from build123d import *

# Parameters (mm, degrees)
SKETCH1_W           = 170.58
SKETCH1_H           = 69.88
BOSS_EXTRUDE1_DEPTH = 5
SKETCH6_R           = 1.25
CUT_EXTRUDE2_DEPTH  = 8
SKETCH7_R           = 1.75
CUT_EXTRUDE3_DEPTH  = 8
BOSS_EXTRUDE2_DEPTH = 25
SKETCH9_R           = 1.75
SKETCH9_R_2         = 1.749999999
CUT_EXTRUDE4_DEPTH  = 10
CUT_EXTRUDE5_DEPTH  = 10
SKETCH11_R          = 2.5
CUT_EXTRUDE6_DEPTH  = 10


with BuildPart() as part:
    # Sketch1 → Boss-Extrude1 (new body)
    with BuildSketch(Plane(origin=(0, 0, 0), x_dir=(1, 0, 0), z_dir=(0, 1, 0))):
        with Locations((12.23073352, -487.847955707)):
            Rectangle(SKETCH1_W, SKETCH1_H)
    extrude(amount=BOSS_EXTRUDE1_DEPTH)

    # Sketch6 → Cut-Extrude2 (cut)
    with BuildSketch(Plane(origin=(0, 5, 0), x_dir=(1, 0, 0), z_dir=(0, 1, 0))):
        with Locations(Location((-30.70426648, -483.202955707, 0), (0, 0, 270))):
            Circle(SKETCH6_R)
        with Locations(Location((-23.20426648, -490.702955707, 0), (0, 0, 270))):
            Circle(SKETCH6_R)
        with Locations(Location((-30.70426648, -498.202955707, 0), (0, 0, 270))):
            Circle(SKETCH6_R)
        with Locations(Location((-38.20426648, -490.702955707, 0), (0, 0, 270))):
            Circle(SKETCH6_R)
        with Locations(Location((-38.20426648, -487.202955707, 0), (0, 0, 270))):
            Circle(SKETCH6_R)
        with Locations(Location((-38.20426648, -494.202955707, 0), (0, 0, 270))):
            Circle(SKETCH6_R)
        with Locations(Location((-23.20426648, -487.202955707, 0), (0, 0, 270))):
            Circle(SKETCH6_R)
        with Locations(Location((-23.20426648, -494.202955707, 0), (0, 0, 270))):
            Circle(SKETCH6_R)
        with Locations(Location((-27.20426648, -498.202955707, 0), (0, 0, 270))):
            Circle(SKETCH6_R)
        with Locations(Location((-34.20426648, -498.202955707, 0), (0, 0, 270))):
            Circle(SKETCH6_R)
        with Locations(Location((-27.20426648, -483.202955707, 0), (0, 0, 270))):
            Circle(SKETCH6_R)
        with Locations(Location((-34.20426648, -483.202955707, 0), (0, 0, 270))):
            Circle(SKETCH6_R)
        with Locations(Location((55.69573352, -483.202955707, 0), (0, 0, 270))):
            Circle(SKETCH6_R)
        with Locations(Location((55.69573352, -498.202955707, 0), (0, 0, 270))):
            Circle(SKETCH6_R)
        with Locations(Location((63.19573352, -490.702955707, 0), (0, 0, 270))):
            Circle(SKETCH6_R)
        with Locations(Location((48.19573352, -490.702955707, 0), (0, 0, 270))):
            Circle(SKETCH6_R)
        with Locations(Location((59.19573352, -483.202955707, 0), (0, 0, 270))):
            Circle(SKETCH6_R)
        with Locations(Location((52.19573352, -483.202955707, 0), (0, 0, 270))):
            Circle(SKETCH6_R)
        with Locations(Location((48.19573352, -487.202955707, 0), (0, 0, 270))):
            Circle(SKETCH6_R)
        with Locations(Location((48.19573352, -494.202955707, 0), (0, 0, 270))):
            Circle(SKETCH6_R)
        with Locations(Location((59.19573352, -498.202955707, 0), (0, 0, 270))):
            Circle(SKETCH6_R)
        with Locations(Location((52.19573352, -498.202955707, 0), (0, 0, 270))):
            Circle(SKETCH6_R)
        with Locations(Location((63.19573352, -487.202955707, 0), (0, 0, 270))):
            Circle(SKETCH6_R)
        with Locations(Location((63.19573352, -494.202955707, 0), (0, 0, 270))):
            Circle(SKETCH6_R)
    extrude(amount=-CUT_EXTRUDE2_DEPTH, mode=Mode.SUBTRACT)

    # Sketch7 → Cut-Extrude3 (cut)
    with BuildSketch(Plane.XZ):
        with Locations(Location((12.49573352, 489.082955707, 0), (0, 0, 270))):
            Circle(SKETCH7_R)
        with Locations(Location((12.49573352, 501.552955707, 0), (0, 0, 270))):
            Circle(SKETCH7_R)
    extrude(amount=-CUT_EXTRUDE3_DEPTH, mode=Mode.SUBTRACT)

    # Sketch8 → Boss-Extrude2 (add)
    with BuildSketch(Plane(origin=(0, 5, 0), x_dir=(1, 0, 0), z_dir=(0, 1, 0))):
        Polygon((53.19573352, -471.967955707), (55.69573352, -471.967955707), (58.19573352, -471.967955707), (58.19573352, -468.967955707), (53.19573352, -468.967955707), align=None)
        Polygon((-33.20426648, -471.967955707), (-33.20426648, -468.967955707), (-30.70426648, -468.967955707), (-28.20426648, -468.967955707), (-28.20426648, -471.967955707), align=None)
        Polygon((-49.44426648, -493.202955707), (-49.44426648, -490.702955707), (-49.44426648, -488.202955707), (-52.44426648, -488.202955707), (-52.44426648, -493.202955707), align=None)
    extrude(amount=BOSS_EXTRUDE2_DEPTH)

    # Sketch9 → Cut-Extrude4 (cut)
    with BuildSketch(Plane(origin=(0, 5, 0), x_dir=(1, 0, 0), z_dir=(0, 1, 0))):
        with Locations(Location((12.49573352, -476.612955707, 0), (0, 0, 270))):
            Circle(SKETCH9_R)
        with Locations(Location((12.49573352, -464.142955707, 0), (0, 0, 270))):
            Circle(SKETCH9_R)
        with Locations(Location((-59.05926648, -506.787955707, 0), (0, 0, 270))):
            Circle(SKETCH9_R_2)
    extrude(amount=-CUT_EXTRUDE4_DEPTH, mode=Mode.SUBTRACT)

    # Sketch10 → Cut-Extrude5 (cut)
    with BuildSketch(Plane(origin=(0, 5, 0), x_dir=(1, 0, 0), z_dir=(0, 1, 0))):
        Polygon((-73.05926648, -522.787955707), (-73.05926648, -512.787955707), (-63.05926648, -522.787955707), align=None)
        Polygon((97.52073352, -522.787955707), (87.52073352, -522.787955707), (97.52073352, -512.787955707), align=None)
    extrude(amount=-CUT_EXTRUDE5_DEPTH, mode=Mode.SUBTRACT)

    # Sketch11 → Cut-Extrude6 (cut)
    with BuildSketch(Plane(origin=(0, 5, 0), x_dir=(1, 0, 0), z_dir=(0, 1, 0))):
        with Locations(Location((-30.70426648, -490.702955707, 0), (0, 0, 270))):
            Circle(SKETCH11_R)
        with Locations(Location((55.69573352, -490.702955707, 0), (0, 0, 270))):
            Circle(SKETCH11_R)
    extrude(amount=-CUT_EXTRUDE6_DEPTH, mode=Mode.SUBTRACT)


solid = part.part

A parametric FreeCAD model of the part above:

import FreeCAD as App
import Part
import Sketcher

V = App.Vector

doc = App.newDocument("Part")
body = doc.addObject("PartDesign::Body", "Body")

sketch1 = doc.addObject("Sketcher::SketchObject", "Sketch")
body.addObject(sketch1)
sketch1.AttachmentSupport = (doc.XZ_Plane, [""])
sketch1.MapMode = "FlatFace"
sketch1.addGeometry([
    Part.LineSegment(V(-73, 453, 0), V(-73, 523, 0)),
    Part.LineSegment(V(-73, 523, 0), V(98, 523, 0)),
    Part.LineSegment(V(98, 523, 0), V(98, 453, 0)),
    Part.LineSegment(V(98, 453, 0), V(-73, 453, 0)),
], False)
sketch1.addConstraint([
    Sketcher.Constraint("Coincident", 0, 2, 1, 1),
    Sketcher.Constraint("Coincident", 1, 2, 2, 1),
    Sketcher.Constraint("Coincident", 2, 2, 3, 1),
    Sketcher.Constraint("Coincident", 3, 2, 0, 1),
    Sketcher.Constraint("Vertical", 0),
    Sketcher.Constraint("Horizontal", 1),
    Sketcher.Constraint("Vertical", 2),
    Sketcher.Constraint("Horizontal", 3),
    Sketcher.Constraint("DistanceX", 1, 1, 1, 2, 170.58),
    Sketcher.Constraint("DistanceY", 0, 1, 0, 2, 69.88),
    Sketcher.Constraint("DistanceX", 0, 2, -1, 1, 73.059266),
    Sketcher.Constraint("DistanceY", -1, 1, 0, 2, 522.787956),
])
pad1 = doc.addObject("PartDesign::Pad", "Pad")
body.addObject(pad1)
pad1.Profile = sketch1
pad1.Length = 5
pad1.Reversed = True

sketch2 = doc.addObject("Sketcher::SketchObject", "Sketch001")
body.addObject(sketch2)
sketch2.AttachmentSupport = (doc.XZ_Plane, [""])
sketch2.MapMode = "FlatFace"
sketch2.AttachmentOffset = App.Placement(V(0, 0, -5), App.Rotation())
sketch2.addGeometry([
    Part.Circle(V(-30.7, 483.2, 0), V(0, 0, 1), 1.2),
    Part.Circle(V(-23.2, 490.7, 0), V(0, 0, 1), 1.2),
    Part.Circle(V(-30.7, 498.2, 0), V(0, 0, 1), 1.2),
    Part.Circle(V(-38.2, 490.7, 0), V(0, 0, 1), 1.2),
    Part.Circle(V(-38.2, 487.2, 0), V(0, 0, 1), 1.2),
    Part.Circle(V(-38.2, 494.2, 0), V(0, 0, 1), 1.2),
    Part.Circle(V(-23.2, 487.2, 0), V(0, 0, 1), 1.2),
    Part.Circle(V(-23.2, 494.2, 0), V(0, 0, 1), 1.2),
    Part.Circle(V(-27.2, 498.2, 0), V(0, 0, 1), 1.2),
    Part.Circle(V(-34.2, 498.2, 0), V(0, 0, 1), 1.2),
    Part.Circle(V(-27.2, 483.2, 0), V(0, 0, 1), 1.2),
    Part.Circle(V(-34.2, 483.2, 0), V(0, 0, 1), 1.2),
    Part.Circle(V(55.7, 483.2, 0), V(0, 0, 1), 1.2),
    Part.Circle(V(55.7, 498.2, 0), V(0, 0, 1), 1.2),
    Part.Circle(V(63.2, 490.7, 0), V(0, 0, 1), 1.2),
    Part.Circle(V(48.2, 490.7, 0), V(0, 0, 1), 1.2),
    Part.Circle(V(59.2, 483.2, 0), V(0, 0, 1), 1.2),
    Part.Circle(V(52.2, 483.2, 0), V(0, 0, 1), 1.2),
    Part.Circle(V(48.2, 487.2, 0), V(0, 0, 1), 1.2),
    Part.Circle(V(48.2, 494.2, 0), V(0, 0, 1), 1.2),
    Part.Circle(V(59.2, 498.2, 0), V(0, 0, 1), 1.2),
    Part.Circle(V(52.2, 498.2, 0), V(0, 0, 1), 1.2),
    Part.Circle(V(63.2, 487.2, 0), V(0, 0, 1), 1.2),
    Part.Circle(V(63.2, 494.2, 0), V(0, 0, 1), 1.2),
], False)
sketch2.addConstraint([
    Sketcher.Constraint("Equal", 0, 1),
    Sketcher.Constraint("Equal", 1, 2),
    Sketcher.Constraint("Equal", 2, 3),
    Sketcher.Constraint("Equal", 3, 4),
    Sketcher.Constraint("Equal", 4, 5),
    Sketcher.Constraint("Equal", 5, 6),
    Sketcher.Constraint("Equal", 6, 7),
    Sketcher.Constraint("Equal", 7, 8),
    Sketcher.Constraint("Equal", 8, 9),
    Sketcher.Constraint("Equal", 9, 10),
    Sketcher.Constraint("Equal", 10, 11),
    Sketcher.Constraint("Equal", 11, 12),
    Sketcher.Constraint("Equal", 12, 13),
    Sketcher.Constraint("Equal", 13, 14),
    Sketcher.Constraint("Equal", 14, 15),
    Sketcher.Constraint("Equal", 15, 16),
    Sketcher.Constraint("Equal", 16, 17),
    Sketcher.Constraint("Equal", 17, 18),
    Sketcher.Constraint("Equal", 18, 19),
    Sketcher.Constraint("Equal", 19, 20),
    Sketcher.Constraint("Equal", 20, 21),
    Sketcher.Constraint("Equal", 21, 22),
    Sketcher.Constraint("Equal", 22, 23),
    Sketcher.Constraint("Horizontal", 1, 3, 3, 3),
    Sketcher.Constraint("Horizontal", 4, 3, 6, 3),
    Sketcher.Constraint("Horizontal", 5, 3, 7, 3),
    Sketcher.Constraint("Horizontal", 2, 3, 8, 3),
    Sketcher.Constraint("Horizontal", 8, 3, 9, 3),
    Sketcher.Constraint("Horizontal", 0, 3, 10, 3),
    Sketcher.Constraint("Horizontal", 10, 3, 11, 3),
    Sketcher.Constraint("Horizontal", 11, 3, 12, 3),
    Sketcher.Constraint("Horizontal", 9, 3, 13, 3),
    Sketcher.Constraint("Horizontal", 3, 3, 14, 3),
    Sketcher.Constraint("Horizontal", 14, 3, 15, 3),
    Sketcher.Constraint("Horizontal", 12, 3, 16, 3),
    Sketcher.Constraint("Horizontal", 16, 3, 17, 3),
    Sketcher.Constraint("Horizontal", 6, 3, 18, 3),
    Sketcher.Constraint("Horizontal", 7, 3, 19, 3),
    Sketcher.Constraint("Horizontal", 13, 3, 20, 3),
    Sketcher.Constraint("Horizontal", 20, 3, 21, 3),
    Sketcher.Constraint("Horizontal", 18, 3, 22, 3),
    Sketcher.Constraint("Horizontal", 19, 3, 23, 3),
    Sketcher.Constraint("Vertical", 0, 3, 2, 3),
    Sketcher.Constraint("Vertical", 3, 3, 4, 3),
    Sketcher.Constraint("Vertical", 4, 3, 5, 3),
    Sketcher.Constraint("Vertical", 1, 3, 6, 3),
    Sketcher.Constraint("Vertical", 6, 3, 7, 3),
    Sketcher.Constraint("Vertical", 8, 3, 10, 3),
    Sketcher.Constraint("Vertical", 9, 3, 11, 3),
    Sketcher.Constraint("Vertical", 12, 3, 13, 3),
    Sketcher.Constraint("Vertical", 15, 3, 18, 3),
    Sketcher.Constraint("Vertical", 18, 3, 19, 3),
    Sketcher.Constraint("Vertical", 16, 3, 20, 3),
    Sketcher.Constraint("Vertical", 17, 3, 21, 3),
    Sketcher.Constraint("Vertical", 14, 3, 22, 3),
    Sketcher.Constraint("Vertical", 22, 3, 23, 3),
    Sketcher.Constraint("Diameter", 0, 2.5),
    Sketcher.Constraint("DistanceY", 0, 3, 2, 3, 15.0),
    Sketcher.Constraint("DistanceX", 3, 3, 1, 3, 15.0),
    Sketcher.Constraint("DistanceY", 0, 3, 4, 3, 4.0),
    Sketcher.Constraint("DistanceY", 4, 3, 5, 3, 7.0),
    Sketcher.Constraint("DistanceX", 8, 3, 7, 3, 4.0),
    Sketcher.Constraint("DistanceX", 5, 3, 9, 3, 4.0),
    Sketcher.Constraint("DistanceX", 15, 3, 14, 3, 15.0),
    Sketcher.Constraint("DistanceX", 16, 3, 14, 3, 4.0),
    Sketcher.Constraint("DistanceX", 17, 3, 16, 3, 7.0),
    Sketcher.Constraint("DistanceX", 0, 3, 1, 3, 7.5),
    Sketcher.Constraint("DistanceY", 0, 3, 1, 3, 7.5),
    Sketcher.Constraint("DistanceX", 6, 3, 12, 3, 78.9),
    Sketcher.Constraint("DistanceX", 12, 3, 14, 3, 7.5),
    Sketcher.Constraint("DistanceX", 0, 3, -1, 1, 30.704266),
    Sketcher.Constraint("DistanceY", -1, 1, 0, 3, 483.202956),
])
pocket1 = doc.addObject("PartDesign::Pocket", "Pocket")
body.addObject(pocket1)
pocket1.Profile = sketch2
pocket1.Length = 8
pocket1.Reversed = True

sketch3 = doc.addObject("Sketcher::SketchObject", "Sketch002")
body.addObject(sketch3)
sketch3.AttachmentSupport = (doc.XZ_Plane, [""])
sketch3.MapMode = "FlatFace"
sketch3.addGeometry([
    Part.Circle(V(12.5, 489.1, 0), V(0, 0, 1), 1.8),
    Part.Circle(V(12.5, 501.6, 0), V(0, 0, 1), 1.8),
], False)
sketch3.addConstraint([
    Sketcher.Constraint("Equal", 0, 1),
    Sketcher.Constraint("Vertical", 0, 3, 1, 3),
    Sketcher.Constraint("Diameter", 0, 3.5),
    Sketcher.Constraint("DistanceY", 0, 3, 1, 3, 12.47),
    Sketcher.Constraint("DistanceX", -1, 1, 0, 3, 12.495734),
    Sketcher.Constraint("DistanceY", -1, 1, 0, 3, 489.082956),
])
pocket2 = doc.addObject("PartDesign::Pocket", "Pocket001")
body.addObject(pocket2)
pocket2.Profile = sketch3
pocket2.Length = 8

sketch4 = doc.addObject("Sketcher::SketchObject", "Sketch003")
body.addObject(sketch4)
sketch4.AttachmentSupport = (doc.XZ_Plane, [""])
sketch4.MapMode = "FlatFace"
sketch4.AttachmentOffset = App.Placement(V(0, 0, -5), App.Rotation())
sketch4.addGeometry([
    Part.LineSegment(V(53.2, 472, 0), V(58.2, 472, 0)),
    Part.LineSegment(V(58.2, 472, 0), V(58.2, 469, 0)),
    Part.LineSegment(V(58.2, 469, 0), V(53.2, 469, 0)),
    Part.LineSegment(V(53.2, 469, 0), V(53.2, 472, 0)),
    Part.LineSegment(V(-33.2, 469, 0), V(-33.2, 472, 0)),
    Part.LineSegment(V(-33.2, 472, 0), V(-28.2, 472, 0)),
    Part.LineSegment(V(-28.2, 472, 0), V(-28.2, 469, 0)),
    Part.LineSegment(V(-28.2, 469, 0), V(-33.2, 469, 0)),
    Part.LineSegment(V(-49.4, 493.2, 0), V(-49.4, 488.2, 0)),
    Part.LineSegment(V(-49.4, 488.2, 0), V(-52.4, 488.2, 0)),
    Part.LineSegment(V(-52.4, 488.2, 0), V(-52.4, 493.2, 0)),
    Part.LineSegment(V(-52.4, 493.2, 0), V(-49.4, 493.2, 0)),
], False)
sketch4.addConstraint([
    Sketcher.Constraint("Coincident", 0, 2, 1, 1),
    Sketcher.Constraint("Coincident", 1, 2, 2, 1),
    Sketcher.Constraint("Coincident", 2, 2, 3, 1),
    Sketcher.Constraint("Coincident", 3, 2, 0, 1),
    Sketcher.Constraint("Coincident", 4, 2, 5, 1),
    Sketcher.Constraint("Coincident", 5, 2, 6, 1),
    Sketcher.Constraint("Coincident", 6, 2, 7, 1),
    Sketcher.Constraint("Coincident", 7, 2, 4, 1),
    Sketcher.Constraint("Coincident", 8, 2, 9, 1),
    Sketcher.Constraint("Coincident", 9, 2, 10, 1),
    Sketcher.Constraint("Coincident", 10, 2, 11, 1),
    Sketcher.Constraint("Coincident", 11, 2, 8, 1),
    Sketcher.Constraint("Horizontal", 0),
    Sketcher.Constraint("Vertical", 1),
    Sketcher.Constraint("Horizontal", 2),
    Sketcher.Constraint("Vertical", 3),
    Sketcher.Constraint("Vertical", 4),
    Sketcher.Constraint("Horizontal", 5),
    Sketcher.Constraint("Vertical", 6),
    Sketcher.Constraint("Horizontal", 7),
    Sketcher.Constraint("Vertical", 8),
    Sketcher.Constraint("Horizontal", 9),
    Sketcher.Constraint("Vertical", 10),
    Sketcher.Constraint("Horizontal", 11),
    Sketcher.Constraint("Horizontal", 3, 2, 4, 2),
    Sketcher.Constraint("Horizontal", 2, 2, 6, 2),
    Sketcher.Constraint("Equal", 2, 5),
    Sketcher.Constraint("Equal", 11, 1),
    Sketcher.Constraint("Equal", 7, 8),
    Sketcher.Constraint("DistanceX", 0, 1, 0, 2, 5.0),
    Sketcher.Constraint("DistanceX", 9, 2, 9, 1, 3.0),
    Sketcher.Constraint("DistanceX", 4, 2, 3, 2, 86.4),
    Sketcher.Constraint("DistanceX", 8, 2, 4, 2, 16.24),
    Sketcher.Constraint("DistanceY", 4, 2, 8, 2, 16.235),
    Sketcher.Constraint("DistanceX", -1, 1, 0, 2, 58.195734),
    Sketcher.Constraint("DistanceY", -1, 1, 0, 2, 471.967956),
])
pad2 = doc.addObject("PartDesign::Pad", "Pad001")
body.addObject(pad2)
pad2.Profile = sketch4
pad2.Length = 25
pad2.Reversed = True

sketch5 = doc.addObject("Sketcher::SketchObject", "Sketch004")
body.addObject(sketch5)
sketch5.AttachmentSupport = (doc.XZ_Plane, [""])
sketch5.MapMode = "FlatFace"
sketch5.AttachmentOffset = App.Placement(V(0, 0, -5), App.Rotation())
sketch5.addGeometry([
    Part.Circle(V(12.5, 476.6, 0), V(0, 0, 1), 1.8),
    Part.Circle(V(12.5, 464.1, 0), V(0, 0, 1), 1.8),
    Part.Circle(V(-59.1, 506.8, 0), V(0, 0, 1), 1.7),
], False)
sketch5.addConstraint([
    Sketcher.Constraint("Equal", 0, 1),
    Sketcher.Constraint("Equal", 1, 2),
    Sketcher.Constraint("Vertical", 0, 3, 1, 3),
    Sketcher.Constraint("Diameter", 0, 3.5),
    Sketcher.Constraint("DistanceY", 1, 3, 0, 3, 12.47),
    Sketcher.Constraint("DistanceX", 2, 3, 0, 3, 71.555),
    Sketcher.Constraint("DistanceY", 0, 3, 2, 3, 30.175),
    Sketcher.Constraint("DistanceX", -1, 1, 0, 3, 12.495734),
    Sketcher.Constraint("DistanceY", -1, 1, 0, 3, 476.612956),
])
pocket3 = doc.addObject("PartDesign::Pocket", "Pocket002")
body.addObject(pocket3)
pocket3.Profile = sketch5
pocket3.Length = 10
pocket3.Reversed = True

sketch6 = doc.addObject("Sketcher::SketchObject", "Sketch005")
body.addObject(sketch6)
sketch6.AttachmentSupport = (doc.XZ_Plane, [""])
sketch6.MapMode = "FlatFace"
sketch6.AttachmentOffset = App.Placement(V(0, 0, -5), App.Rotation())
sketch6.addGeometry([
    Part.LineSegment(V(-73, 513, 0), V(-73, 523, 0)),
    Part.LineSegment(V(-73, 523, 0), V(-63, 523, 0)),
    Part.LineSegment(V(-63, 523, 0), V(-73, 513, 0)),
    Part.LineSegment(V(88, 523, 0), V(98, 523, 0)),
    Part.LineSegment(V(98, 523, 0), V(98, 513, 0)),
    Part.LineSegment(V(98, 513, 0), V(88, 523, 0)),
], False)
sketch6.addConstraint([
    Sketcher.Constraint("Coincident", 0, 2, 1, 1),
    Sketcher.Constraint("Coincident", 1, 2, 2, 1),
    Sketcher.Constraint("Coincident", 2, 2, 0, 1),
    Sketcher.Constraint("Coincident", 3, 2, 4, 1),
    Sketcher.Constraint("Coincident", 4, 2, 5, 1),
    Sketcher.Constraint("Coincident", 5, 2, 3, 1),
    Sketcher.Constraint("Vertical", 0),
    Sketcher.Constraint("Horizontal", 1),
    Sketcher.Constraint("Horizontal", 3),
    Sketcher.Constraint("Vertical", 4),
    Sketcher.Constraint("Perpendicular", 2, 5),
    Sketcher.Constraint("Horizontal", 1, 2, 3, 2),
    Sketcher.Constraint("Horizontal", 2, 2, 4, 2),
    Sketcher.Constraint("Equal", 1, 3),
    Sketcher.Constraint("DistanceX", 1, 1, 1, 2, 10.0),
    Sketcher.Constraint("DistanceX", 1, 2, 3, 2, 160.58),
    Sketcher.Constraint("DistanceX", 0, 2, -1, 1, 73.059266),
    Sketcher.Constraint("DistanceY", -1, 1, 0, 2, 522.787956),
])
pocket4 = doc.addObject("PartDesign::Pocket", "Pocket003")
body.addObject(pocket4)
pocket4.Profile = sketch6
pocket4.Length = 10
pocket4.Reversed = True

sketch7 = doc.addObject("Sketcher::SketchObject", "Sketch006")
body.addObject(sketch7)
sketch7.AttachmentSupport = (doc.XZ_Plane, [""])
sketch7.MapMode = "FlatFace"
sketch7.AttachmentOffset = App.Placement(V(0, 0, -5), App.Rotation())
sketch7.addGeometry([
    Part.Circle(V(-30.7, 490.7, 0), V(0, 0, 1), 2.5),
    Part.Circle(V(55.7, 490.7, 0), V(0, 0, 1), 2.5),
], False)
sketch7.addConstraint([
    Sketcher.Constraint("Equal", 0, 1),
    Sketcher.Constraint("Horizontal", 0, 3, 1, 3),
    Sketcher.Constraint("Diameter", 0, 5.0),
    Sketcher.Constraint("DistanceX", 0, 3, 1, 3, 86.4),
    Sketcher.Constraint("DistanceX", 0, 3, -1, 1, 30.704266),
    Sketcher.Constraint("DistanceY", -1, 1, 0, 3, 490.702956),
])
pocket5 = doc.addObject("PartDesign::Pocket", "Pocket004")
body.addObject(pocket5)
pocket5.Profile = sketch7
pocket5.Length = 10
pocket5.Reversed = True

doc.recompute()
